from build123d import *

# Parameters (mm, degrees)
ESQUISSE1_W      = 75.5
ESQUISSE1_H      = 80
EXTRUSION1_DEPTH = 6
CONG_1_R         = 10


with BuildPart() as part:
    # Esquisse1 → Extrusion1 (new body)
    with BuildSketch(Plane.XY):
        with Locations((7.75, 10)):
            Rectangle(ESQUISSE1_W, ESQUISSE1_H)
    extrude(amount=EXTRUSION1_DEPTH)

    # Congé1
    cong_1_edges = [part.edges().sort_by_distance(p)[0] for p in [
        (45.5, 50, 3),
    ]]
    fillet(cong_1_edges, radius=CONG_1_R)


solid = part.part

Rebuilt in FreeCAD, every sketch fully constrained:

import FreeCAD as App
import Part
import Sketcher
from FreeCAD import Vector
Q = App.Units.Quantity


def edges_at(feature, points):
    """Names of the edges that pass closest to the given points."""
    edges = feature.Shape.Edges
    near = lambda p: min(range(len(edges)), key=lambda i: edges[i].distToShape(Part.Vertex(*p))[0])
    return sorted({f"Edge{near(p) + 1}" for p in points})

doc = App.newDocument("Part")
params = doc.addObject("Spreadsheet::Sheet", "Params")
for row, (alias, value) in enumerate([
    ("sketch1_height", "80 mm"),
    ("sketch1_width", "75.5 mm"),
    ("pad1_length", "6 mm"),
    ("fillet_radius", "10 mm"),
], start=1):
    params.set(f"A{row}", alias)
    params.set(f"B{row}", "=" + value)
    params.setAlias(f"B{row}", alias)

body = doc.addObject("PartDesign::Body", "Body")

# Sketch on XY plane
sketch1 = body.newObject("Sketcher::SketchObject", "Sketch")
sketch1.AttachmentSupport = (doc.getObject("XY_Plane"), [""])
sketch1.MapMode = "FlatFace"
sketch1.addGeometry([
    Part.LineSegment(Vector(-30, 50, 0), Vector(-30, -30, 0)),
    Part.LineSegment(Vector(-30, -30, 0), Vector(46, -30, 0)),
    Part.LineSegment(Vector(46, -30, 0), Vector(46, 50, 0)),
    Part.LineSegment(Vector(46, 50, 0), Vector(-30, 50, 0)),
], False)
sketch1.addConstraint([
    Sketcher.Constraint("Coincident", 0, 2, 1, 1),
    Sketcher.Constraint("Coincident", 1, 2, 2, 1),
    Sketcher.Constraint("Coincident", 2, 2, 3, 1),
    Sketcher.Constraint("Coincident", 3, 2, 0, 1),
    Sketcher.Constraint("Vertical", 0),
    Sketcher.Constraint("Horizontal", 1),
    Sketcher.Constraint("Vertical", 2),
    Sketcher.Constraint("Horizontal", 3),
    Sketcher.Constraint("DistanceY", 0, 2, 0, 1, Q("80 mm")),
    Sketcher.Constraint("DistanceX", 1, 1, 1, 2, Q("75.5 mm")),
    Sketcher.Constraint("DistanceX", 0, 2, -1, 1, Q("30 mm")),
    Sketcher.Constraint("DistanceY", 0, 2, -1, 1, Q("30 mm")),
])
sketch1.setExpression("Constraints[8]", "Params.sketch1_height")
sketch1.setExpression("Constraints[9]", "Params.sketch1_width")
pad1 = body.newObject("PartDesign::Pad", "Pad")
pad1.Profile = sketch1
pad1.setExpression("Length", "Params.pad1_length")
doc.recompute()

fillet = body.newObject("PartDesign::Fillet", "Fillet")
fillet.Base = (pad1, edges_at(pad1, [(45.5, 50, 3)]))
fillet.setExpression("Radius", "Params.fillet_radius")

doc.recompute()
